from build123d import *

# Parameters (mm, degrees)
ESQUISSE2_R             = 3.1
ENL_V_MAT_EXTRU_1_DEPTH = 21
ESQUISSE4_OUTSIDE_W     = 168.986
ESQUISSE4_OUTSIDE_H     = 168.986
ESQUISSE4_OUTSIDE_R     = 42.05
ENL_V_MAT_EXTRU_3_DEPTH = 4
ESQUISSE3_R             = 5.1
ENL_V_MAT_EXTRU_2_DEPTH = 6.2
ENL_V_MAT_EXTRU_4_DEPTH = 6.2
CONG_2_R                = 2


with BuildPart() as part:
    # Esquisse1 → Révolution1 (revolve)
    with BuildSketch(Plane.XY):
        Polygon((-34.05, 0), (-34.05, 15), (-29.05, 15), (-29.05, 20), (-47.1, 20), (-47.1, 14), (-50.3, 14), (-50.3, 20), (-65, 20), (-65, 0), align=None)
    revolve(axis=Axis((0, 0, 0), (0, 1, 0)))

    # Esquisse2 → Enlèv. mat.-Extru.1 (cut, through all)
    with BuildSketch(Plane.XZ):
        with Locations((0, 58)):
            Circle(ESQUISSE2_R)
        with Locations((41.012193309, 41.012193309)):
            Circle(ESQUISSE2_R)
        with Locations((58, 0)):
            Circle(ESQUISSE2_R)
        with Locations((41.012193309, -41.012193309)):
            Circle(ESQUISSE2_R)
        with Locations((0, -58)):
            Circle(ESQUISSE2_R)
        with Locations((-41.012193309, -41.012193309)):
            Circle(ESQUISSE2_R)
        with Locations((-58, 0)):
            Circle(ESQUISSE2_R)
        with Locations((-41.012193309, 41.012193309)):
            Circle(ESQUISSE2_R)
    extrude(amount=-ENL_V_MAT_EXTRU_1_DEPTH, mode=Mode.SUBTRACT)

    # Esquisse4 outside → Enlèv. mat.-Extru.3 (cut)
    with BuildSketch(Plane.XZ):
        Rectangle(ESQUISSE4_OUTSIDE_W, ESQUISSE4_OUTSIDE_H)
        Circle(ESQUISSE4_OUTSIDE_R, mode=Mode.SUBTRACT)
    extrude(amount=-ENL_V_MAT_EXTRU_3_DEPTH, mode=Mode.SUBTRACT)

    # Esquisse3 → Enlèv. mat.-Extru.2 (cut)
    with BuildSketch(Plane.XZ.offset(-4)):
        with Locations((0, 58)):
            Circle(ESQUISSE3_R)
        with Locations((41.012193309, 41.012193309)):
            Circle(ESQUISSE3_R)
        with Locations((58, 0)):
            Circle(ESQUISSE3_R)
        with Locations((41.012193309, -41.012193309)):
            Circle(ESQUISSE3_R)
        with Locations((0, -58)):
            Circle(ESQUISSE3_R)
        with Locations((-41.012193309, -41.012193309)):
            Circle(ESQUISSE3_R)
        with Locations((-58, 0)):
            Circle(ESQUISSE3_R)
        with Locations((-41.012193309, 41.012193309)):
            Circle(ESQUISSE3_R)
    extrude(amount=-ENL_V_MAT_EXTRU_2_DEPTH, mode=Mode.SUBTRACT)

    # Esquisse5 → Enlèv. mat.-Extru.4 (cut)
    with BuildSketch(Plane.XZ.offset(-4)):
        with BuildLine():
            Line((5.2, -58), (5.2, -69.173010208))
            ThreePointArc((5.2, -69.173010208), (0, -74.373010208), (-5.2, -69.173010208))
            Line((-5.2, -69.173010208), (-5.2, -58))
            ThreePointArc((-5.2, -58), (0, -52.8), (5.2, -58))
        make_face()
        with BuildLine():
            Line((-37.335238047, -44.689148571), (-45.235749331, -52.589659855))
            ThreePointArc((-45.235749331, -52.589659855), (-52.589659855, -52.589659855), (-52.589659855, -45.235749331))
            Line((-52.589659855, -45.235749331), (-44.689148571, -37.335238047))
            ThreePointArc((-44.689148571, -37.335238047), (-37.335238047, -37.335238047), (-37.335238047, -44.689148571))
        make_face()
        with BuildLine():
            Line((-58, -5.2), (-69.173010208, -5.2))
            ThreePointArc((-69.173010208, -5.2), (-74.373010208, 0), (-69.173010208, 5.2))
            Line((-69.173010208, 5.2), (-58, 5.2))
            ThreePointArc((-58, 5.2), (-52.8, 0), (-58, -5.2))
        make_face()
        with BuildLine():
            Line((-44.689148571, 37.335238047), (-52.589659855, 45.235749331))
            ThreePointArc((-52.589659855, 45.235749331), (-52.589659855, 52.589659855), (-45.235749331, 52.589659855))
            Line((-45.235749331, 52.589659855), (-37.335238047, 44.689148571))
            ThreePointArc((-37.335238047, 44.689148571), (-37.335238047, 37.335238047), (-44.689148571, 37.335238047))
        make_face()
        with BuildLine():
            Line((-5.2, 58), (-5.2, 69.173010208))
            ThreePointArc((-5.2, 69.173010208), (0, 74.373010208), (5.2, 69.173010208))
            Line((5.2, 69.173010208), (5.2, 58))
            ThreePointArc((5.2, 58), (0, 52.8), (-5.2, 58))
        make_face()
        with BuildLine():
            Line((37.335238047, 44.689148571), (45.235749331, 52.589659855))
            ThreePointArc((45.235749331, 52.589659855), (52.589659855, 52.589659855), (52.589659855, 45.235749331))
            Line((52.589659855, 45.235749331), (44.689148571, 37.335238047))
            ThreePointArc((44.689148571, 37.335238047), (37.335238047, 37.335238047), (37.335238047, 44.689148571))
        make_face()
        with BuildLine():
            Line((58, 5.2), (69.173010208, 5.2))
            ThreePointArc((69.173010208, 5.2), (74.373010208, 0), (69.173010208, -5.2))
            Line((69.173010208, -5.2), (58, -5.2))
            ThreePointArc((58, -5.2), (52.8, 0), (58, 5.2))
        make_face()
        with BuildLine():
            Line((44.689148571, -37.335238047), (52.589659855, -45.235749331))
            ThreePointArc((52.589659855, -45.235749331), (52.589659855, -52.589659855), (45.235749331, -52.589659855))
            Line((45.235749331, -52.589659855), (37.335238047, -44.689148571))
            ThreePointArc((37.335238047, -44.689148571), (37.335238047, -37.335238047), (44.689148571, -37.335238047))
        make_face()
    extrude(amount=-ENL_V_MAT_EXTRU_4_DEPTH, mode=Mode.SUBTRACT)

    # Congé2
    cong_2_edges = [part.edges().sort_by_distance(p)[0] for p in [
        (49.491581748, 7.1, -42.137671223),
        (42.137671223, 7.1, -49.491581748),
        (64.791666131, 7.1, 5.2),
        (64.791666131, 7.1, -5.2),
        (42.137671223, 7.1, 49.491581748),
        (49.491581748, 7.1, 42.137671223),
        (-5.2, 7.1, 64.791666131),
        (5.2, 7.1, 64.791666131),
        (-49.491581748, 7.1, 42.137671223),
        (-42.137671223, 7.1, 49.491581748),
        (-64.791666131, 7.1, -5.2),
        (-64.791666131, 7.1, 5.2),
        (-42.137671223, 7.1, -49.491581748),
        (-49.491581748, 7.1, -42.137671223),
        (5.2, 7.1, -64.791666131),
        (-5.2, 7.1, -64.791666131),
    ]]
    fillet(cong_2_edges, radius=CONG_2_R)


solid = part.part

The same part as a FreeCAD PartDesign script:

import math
import FreeCAD as App
import Part
import Sketcher
Q = App.Units.Quantity


def edges_at(feature, points):
    """Names of the edges that pass closest to the given points."""
    edges = feature.Shape.Edges
    near = lambda p: min(range(len(edges)), key=lambda i: edges[i].distToShape(Part.Vertex(*p))[0])
    return sorted({f"Edge{near(p) + 1}" for p in points})


def add_polygon(sketch, points):
    """Adds a closed chain of lines whose ends are joined by coincident constraints."""
    first, n = sketch.GeometryCount, len(points)
    for a, b in zip(points, points[1:] + points[:1]):
        sketch.addGeometry(Part.LineSegment(App.Vector(*a, 0), App.Vector(*b, 0)), False)
    for i in range(n):
        sketch.addConstraint(Sketcher.Constraint("Coincident", first + i, 2, first + (i + 1) % n, 1))

doc = App.newDocument("Part")
body = doc.addObject("PartDesign::Body", "Body")

# Sketch on XY plane
sketch1 = body.newObject("Sketcher::SketchObject", "Sketch")
sketch1.AttachmentSupport = (doc.getObject("XY_Plane"), [""])
sketch1.MapMode = "FlatFace"
add_polygon(sketch1, [(-34, 0), (-34, 15), (-29.1, 15), (-29.1, 20), (-47.1, 20), (-47.1, 14), (-50.3, 14), (-50.3, 20), (-65, 20), (-65, 0)])  # lines 0-9
sketch1.addConstraint([
    Sketcher.Constraint("Vertical", 0),
    Sketcher.Constraint("Horizontal", 1),
    Sketcher.Constraint("Vertical", 2),
    Sketcher.Constraint("Horizontal", 3),
    Sketcher.Constraint("Vertical", 4),
    Sketcher.Constraint("Horizontal", 5),
    Sketcher.Constraint("Vertical", 6),
    Sketcher.Constraint("Horizontal", 7),
    Sketcher.Constraint("Vertical", 8),
    Sketcher.Constraint("Horizontal", 9),
    Sketcher.Constraint("PointOnObject", 8, 2, -1),
    Sketcher.Constraint("Horizontal", 3, 2, 6, 2),
    Sketcher.Constraint("Equal", 1, 2),
    Sketcher.Constraint("DistanceX", 1, 1, 1, 2, Q("5 mm")),
    Sketcher.Constraint("DistanceY", 0, 1, 0, 2, Q("15 mm")),
    Sketcher.Constraint("DistanceY", 4, 2, 4, 1, Q("6 mm")),
    Sketcher.Constraint("DistanceX", 5, 2, 5, 1, Q("3.2 mm")),
    Sketcher.Constraint("DistanceX", 7, 2, 7, 1, Q("14.7 mm")),
    Sketcher.Constraint("DistanceX", 7, 2, -1, 1, Q("65 mm")),
    Sketcher.Constraint("DistanceX", 3, 2, 3, 1, Q("18.05 mm")),
])
revolution = body.newObject("PartDesign::Revolution", "Revolution")
revolution.Profile = sketch1
revolution.ReferenceAxis = (sketch1, ["V_Axis"])
revolution.Angle = 360

# Sketch on XZ plane
sketch2 = body.newObject("Sketcher::SketchObject", "Sketch001")
sketch2.AttachmentSupport = (doc.getObject("XZ_Plane"), [""])
sketch2.MapMode = "FlatFace"
sketch2.addGeometry([
    Part.Circle(App.Vector(0, 58, 0), App.Vector(0, 0, 1), 3.1),  # 0
    Part.Circle(App.Vector(41, 41, 0), App.Vector(0, 0, 1), 3.1),  # 1
    Part.Circle(App.Vector(58, 0, 0), App.Vector(0, 0, 1), 3.1),  # 2
    Part.Circle(App.Vector(41, -41, 0), App.Vector(0, 0, 1), 3.1),  # 3
    Part.Circle(App.Vector(0, -58, 0), App.Vector(0, 0, 1), 3.1),  # 4
    Part.Circle(App.Vector(-41, -41, 0), App.Vector(0, 0, 1), 3.1),  # 5
    Part.Circle(App.Vector(-58, 0, 0), App.Vector(0, 0, 1), 3.1),  # 6
    Part.Circle(App.Vector(-41, 41, 0), App.Vector(0, 0, 1), 3.1),  # 7
], False)
sketch2.addConstraint([
    Sketcher.Constraint("Equal", 0, 1),
    Sketcher.Constraint("Equal", 1, 2),
    Sketcher.Constraint("Equal", 2, 3),
    Sketcher.Constraint("Equal", 3, 4),
    Sketcher.Constraint("Equal", 4, 5),
    Sketcher.Constraint("Equal", 5, 6),
    Sketcher.Constraint("Equal", 6, 7),
    Sketcher.Constraint("Symmetric", 0, 3, 4, 3, -1, 1),
    Sketcher.Constraint("Symmetric", 1, 3, 5, 3, -1, 1),
    Sketcher.Constraint("Symmetric", 2, 3, 6, 3, -1, 1),
    Sketcher.Constraint("Symmetric", 3, 3, 7, 3, -1, 1),
    Sketcher.Constraint("Symmetric", 3, 3, 5, 3, -2),
    Sketcher.Constraint("PointOnObject", 0, 3, -2),
    Sketcher.Constraint("PointOnObject", 2, 3, -1),
    Sketcher.Constraint("Diameter", 0, Q("6.2 mm")),
    Sketcher.Constraint("DistanceY", -1, 1, 0, 3, Q("58 mm")),
    Sketcher.Constraint("DistanceX", -1, 1, 2, 3, Q("58 mm")),
    Sketcher.Constraint("DistanceX", -1, 1, 1, 3, Q("41.012193 mm")),
    Sketcher.Constraint("DistanceY", -1, 1, 1, 3, Q("41.012193 mm")),
])
pocket1 = body.newObject("PartDesign::Pocket", "Pocket")
pocket1.Profile = sketch2
pocket1.Type = "ThroughAll"

# Sketch on XZ plane
sketch3 = body.newObject("Sketcher::SketchObject", "Sketch002")
sketch3.AttachmentSupport = (doc.getObject("XZ_Plane"), [""])
sketch3.MapMode = "FlatFace"
add_polygon(sketch3, [(-84, 84), (-84, -84), (84, -84), (84, 84)])  # lines 0-3
sketch3.addGeometry(Part.Circle(App.Vector(0, 0, 0), App.Vector(0, 0, 1), 42), False)  # 4
sketch3.addConstraint([
    Sketcher.Constraint("Vertical", 0),
    Sketcher.Constraint("Horizontal", 1),
    Sketcher.Constraint("Vertical", 2),
    Sketcher.Constraint("Horizontal", 3),
    Sketcher.Constraint("Coincident", 4, 3, -1, 1),
    Sketcher.Constraint("Symmetric", 0, 2, 2, 2, -1, 1),
    Sketcher.Constraint("Equal", 3, 0),
    Sketcher.Constraint("Diameter", 4, Q("84.1 mm")),
    Sketcher.Constraint("DistanceX", 1, 1, 1, 2, Q("168.986 mm")),
])
pocket2 = body.newObject("PartDesign::Pocket", "Pocket001")
pocket2.Profile = sketch3
pocket2.Length = 4

# Sketch on XZ plane
sketch4 = body.newObject("Sketcher::SketchObject", "Sketch003")
sketch4.AttachmentSupport = (doc.getObject("XZ_Plane"), [""])
sketch4.MapMode = "FlatFace"
sketch4.AttachmentOffset = App.Placement(App.Vector(0, 0, -4), App.Rotation())
sketch4.addGeometry([
    Part.Circle(App.Vector(0, 58, 0), App.Vector(0, 0, 1), 5),  # 0
    Part.Circle(App.Vector(41, 41, 0), App.Vector(0, 0, 1), 5),  # 1
    Part.Circle(App.Vector(58, 0, 0), App.Vector(0, 0, 1), 5),  # 2
    Part.Circle(App.Vector(41, -41, 0), App.Vector(0, 0, 1), 5),  # 3
    Part.Circle(App.Vector(0, -58, 0), App.Vector(0, 0, 1), 5),  # 4
    Part.Circle(App.Vector(-41, -41, 0), App.Vector(0, 0, 1), 5),  # 5
    Part.Circle(App.Vector(-58, 0, 0), App.Vector(0, 0, 1), 5),  # 6
    Part.Circle(App.Vector(-41, 41, 0), App.Vector(0, 0, 1), 5),  # 7
], False)
sketch4.addConstraint([
    Sketcher.Constraint("Equal", 0, 1),
    Sketcher.Constraint("Equal", 1, 2),
    Sketcher.Constraint("Equal", 2, 3),
    Sketcher.Constraint("Equal", 3, 4),
    Sketcher.Constraint("Equal", 4, 5),
    Sketcher.Constraint("Equal", 5, 6),
    Sketcher.Constraint("Equal", 6, 7),
    Sketcher.Constraint("Symmetric", 0, 3, 4, 3, -1, 1),
    Sketcher.Constraint("Symmetric", 1, 3, 5, 3, -1, 1),
    Sketcher.Constraint("Symmetric", 2, 3, 6, 3, -1, 1),
    Sketcher.Constraint("Symmetric", 3, 3, 7, 3, -1, 1),
    Sketcher.Constraint("Symmetric", 3, 3, 5, 3, -2),
    Sketcher.Constraint("PointOnObject", 0, 3, -2),
    Sketcher.Constraint("PointOnObject", 2, 3, -1),
    Sketcher.Constraint("Diameter", 0, Q("10.2 mm")),
    Sketcher.Constraint("DistanceY", -1, 1, 0, 3, Q("58 mm")),
    Sketcher.Constraint("DistanceX", -1, 1, 2, 3, Q("58 mm")),
    Sketcher.Constraint("DistanceX", -1, 1, 1, 3, Q("41.012193 mm")),
    Sketcher.Constraint("DistanceY", -1, 1, 1, 3, Q("41.012193 mm")),
])
pocket3 = body.newObject("PartDesign::Pocket", "Pocket002")
pocket3.Profile = sketch4
pocket3.Length = 6.2

# Sketch on XZ plane
sketch5 = body.newObject("Sketcher::SketchObject", "Sketch004")
sketch5.AttachmentSupport = (doc.getObject("XZ_Plane"), [""])
sketch5.MapMode = "FlatFace"
sketch5.AttachmentOffset = App.Placement(App.Vector(0, 0, -4), App.Rotation())
sketch5.addGeometry([
    Part.LineSegment(App.Vector(5, -69, 0), App.Vector(5, -58, 0)),  # 0
    Part.ArcOfCircle(Part.Circle(App.Vector(0, -58, 0), App.Vector(0, 0, 1), 5), math.radians(0), math.radians(180)),  # 1
    Part.LineSegment(App.Vector(-5, -58, 0), App.Vector(-5, -69, 0)),  # 2
    Part.ArcOfCircle(Part.Circle(App.Vector(0, -69, 0), App.Vector(0, 0, 1), 5), math.radians(180), math.radians(360)),  # 3
    Part.LineSegment(App.Vector(-45, -53, 0), App.Vector(-37, -45, 0)),  # 4
    Part.ArcOfCircle(Part.Circle(App.Vector(-41, -41, 0), App.Vector(0, 0, 1), 5), math.radians(-45), math.radians(135)),  # 5
    Part.LineSegment(App.Vector(-45, -37, 0), App.Vector(-53, -45, 0)),  # 6
    Part.ArcOfCircle(Part.Circle(App.Vector(-49, -49, 0), App.Vector(0, 0, 1), 5), math.radians(135), math.radians(315)),  # 7
    Part.LineSegment(App.Vector(-69, -5, 0), App.Vector(-58, -5, 0)),  # 8
    Part.ArcOfCircle(Part.Circle(App.Vector(-58, 0, 0), App.Vector(0, 0, 1), 5), math.radians(-90), math.radians(90)),  # 9
    Part.LineSegment(App.Vector(-58, 5, 0), App.Vector(-69, 5, 0)),  # 10
    Part.ArcOfCircle(Part.Circle(App.Vector(-69, 0, 0), App.Vector(0, 0, 1), 5), math.radians(90), math.radians(270)),  # 11
    Part.LineSegment(App.Vector(-53, 45, 0), App.Vector(-45, 37, 0)),  # 12
    Part.ArcOfCircle(Part.Circle(App.Vector(-41, 41, 0), App.Vector(0, 0, 1), 5), math.radians(-135), math.radians(45)),  # 13
    Part.LineSegment(App.Vector(-37, 45, 0), App.Vector(-45, 53, 0)),  # 14
    Part.ArcOfCircle(Part.Circle(App.Vector(-49, 49, 0), App.Vector(0, 0, 1), 5), math.radians(45), math.radians(225)),  # 15
    Part.LineSegment(App.Vector(-5, 69, 0), App.Vector(-5, 58, 0)),  # 16
    Part.ArcOfCircle(Part.Circle(App.Vector(0, 58, 0), App.Vector(0, 0, 1), 5), math.radians(180), math.radians(360)),  # 17
    Part.LineSegment(App.Vector(5, 58, 0), App.Vector(5, 69, 0)),  # 18
    Part.ArcOfCircle(Part.Circle(App.Vector(0, 69, 0), App.Vector(0, 0, 1), 5), math.radians(0), math.radians(180)),  # 19
    Part.LineSegment(App.Vector(45, 53, 0), App.Vector(37, 45, 0)),  # 20
    Part.ArcOfCircle(Part.Circle(App.Vector(41, 41, 0), App.Vector(0, 0, 1), 5), math.radians(135), math.radians(315)),  # 21
    Part.LineSegment(App.Vector(45, 37, 0), App.Vector(53, 45, 0)),  # 22
    Part.ArcOfCircle(Part.Circle(App.Vector(49, 49, 0), App.Vector(0, 0, 1), 5), math.radians(-45), math.radians(135)),  # 23
    Part.LineSegment(App.Vector(69, 5, 0), App.Vector(58, 5, 0)),  # 24
    Part.ArcOfCircle(Part.Circle(App.Vector(58, 0, 0), App.Vector(0, 0, 1), 5), math.radians(90), math.radians(270)),  # 25
    Part.LineSegment(App.Vector(58, -5, 0), App.Vector(69, -5, 0)),  # 26
    Part.ArcOfCircle(Part.Circle(App.Vector(69, 0, 0), App.Vector(0, 0, 1), 5), math.radians(-90), math.radians(90)),  # 27
    Part.LineSegment(App.Vector(53, -45, 0), App.Vector(45, -37, 0)),  # 28
    Part.ArcOfCircle(Part.Circle(App.Vector(41, -41, 0), App.Vector(0, 0, 1), 5), math.radians(45), math.radians(225)),  # 29
    Part.LineSegment(App.Vector(37, -45, 0), App.Vector(45, -53, 0)),  # 30
    Part.ArcOfCircle(Part.Circle(App.Vector(49, -49, 0), App.Vector(0, 0, 1), 5), math.radians(-135), math.radians(45)),  # 31
], False)
sketch5.addConstraint([
    Sketcher.Constraint("Tangent", 0, 2, 1, 1),
    Sketcher.Constraint("Tangent", 1, 2, 2, 1),
    Sketcher.Constraint("Tangent", 2, 2, 3, 1),
    Sketcher.Constraint("Tangent", 3, 2, 0, 1),
    Sketcher.Constraint("Tangent", 4, 2, 5, 1),
    Sketcher.Constraint("Tangent", 5, 2, 6, 1),
    Sketcher.Constraint("Tangent", 6, 2, 7, 1),
    Sketcher.Constraint("Tangent", 7, 2, 4, 1),
    Sketcher.Constraint("Tangent", 8, 2, 9, 1),
    Sketcher.Constraint("Tangent", 9, 2, 10, 1),
    Sketcher.Constraint("Tangent", 10, 2, 11, 1),
    Sketcher.Constraint("Tangent", 11, 2, 8, 1),
    Sketcher.Constraint("Tangent", 12, 2, 13, 1),
    Sketcher.Constraint("Tangent", 13, 2, 14, 1),
    Sketcher.Constraint("Tangent", 14, 2, 15, 1),
    Sketcher.Constraint("Tangent", 15, 2, 12, 1),
    Sketcher.Constraint("Tangent", 16, 2, 17, 1),
    Sketcher.Constraint("Tangent", 17, 2, 18, 1),
    Sketcher.Constraint("Tangent", 18, 2, 19, 1),
    Sketcher.Constraint("Tangent", 19, 2, 16, 1),
    Sketcher.Constraint("Tangent", 20, 2, 21, 1),
    Sketcher.Constraint("Tangent", 21, 2, 22, 1),
    Sketcher.Constraint("Tangent", 22, 2, 23, 1),
    Sketcher.Constraint("Tangent", 23, 2, 20, 1),
    Sketcher.Constraint("Tangent", 24, 2, 25, 1),
    Sketcher.Constraint("Tangent", 25, 2, 26, 1),
    Sketcher.Constraint("Tangent", 26, 2, 27, 1),
    Sketcher.Constraint("Tangent", 27, 2, 24, 1),
    Sketcher.Constraint("Tangent", 28, 2, 29, 1),
    Sketcher.Constraint("Tangent", 29, 2, 30, 1),
    Sketcher.Constraint("Tangent", 30, 2, 31, 1),
    Sketcher.Constraint("Tangent", 31, 2, 28, 1),
    Sketcher.Constraint("Vertical", 0),
    Sketcher.Constraint("Vertical", 2),
    Sketcher.Constraint("Horizontal", 8),
    Sketcher.Constraint("Horizontal", 10),
    Sketcher.Constraint("Vertical", 16),
    Sketcher.Constraint("Vertical", 18),
    Sketcher.Constraint("Horizontal", 24),
    Sketcher.Constraint("Horizontal", 26),
    Sketcher.Constraint("Equal", 3, 5),
    Sketcher.Constraint("Equal", 5, 7),
    Sketcher.Constraint("Equal", 7, 9),
    Sketcher.Constraint("Equal", 11, 13),
    Sketcher.Constraint("Equal", 13, 15),
    Sketcher.Constraint("Equal", 15, 17),
    Sketcher.Constraint("Equal", 19, 21),
    Sketcher.Constraint("Equal", 21, 23),
    Sketcher.Constraint("Equal", 23, 25),
    Sketcher.Constraint("Equal", 27, 29),
    Sketcher.Constraint("Equal", 29, 31),
    Sketcher.Constraint("Symmetric", 1, 3, 17, 3, -1, 1),
    Sketcher.Constraint("Symmetric", 5, 3, 21, 3, -1, 1),
    Sketcher.Constraint("Symmetric", 7, 3, 23, 3, -1, 1),
    Sketcher.Constraint("Symmetric", 9, 3, 25, 3, -1, 1),
    Sketcher.Constraint("Symmetric", 13, 3, 29, 3, -1, 1),
    Sketcher.Constraint("Symmetric", 15, 3, 31, 3, -1, 1),
    Sketcher.Constraint("Symmetric", 13, 3, 21, 3, -2),
    Sketcher.Constraint("Symmetric", 15, 3, 23, 3, -2),
    Sketcher.Constraint("Symmetric", 11, 3, 27, 3, -2),
    Sketcher.Constraint("Symmetric", 3, 3, 19, 3, -1),
    Sketcher.Constraint("Perpendicular", 6, 12),
    Sketcher.Constraint("Equal", 26, 0),
    Sketcher.Constraint("Radius", 1, Q("5.2 mm")),
    Sketcher.Constraint("DistanceY", 1, 3, -1, 1, Q("58 mm")),
    Sketcher.Constraint("DistanceX", 9, 3, -1, 1, Q("58 mm")),
    Sketcher.Constraint("DistanceX", 8, 1, 8, 2, Q("11.17301 mm")),
    Sketcher.Constraint("DistanceY", 6, 2, 4, 2, Q("0.546601 mm")),
    Sketcher.Constraint("DistanceX", 4, 2, -1, 1, Q("37.335238 mm")),
    Sketcher.Constraint("DistanceY", 4, 2, -1, 1, Q("44.689149 mm")),
])
pocket4 = body.newObject("PartDesign::Pocket", "Pocket003")
pocket4.Profile = sketch5
pocket4.Length = 6.2
doc.recompute()

fillet = body.newObject("PartDesign::Fillet", "Fillet")
fillet.Base = (pocket4, edges_at(pocket4, [
    (49.492, 7.1, -42.138),
    (42.138, 7.1, -49.492),
    (64.792, 7.1, 5.2),
    (64.792, 7.1, -5.2),
    (42.138, 7.1, 49.492),
    (49.492, 7.1, 42.138),
    (-5.2, 7.1, 64.792),
    (5.2, 7.1, 64.792),
    (-49.492, 7.1, 42.138),
    (-42.138, 7.1, 49.492),
    (-64.792, 7.1, -5.2),
    (-64.792, 7.1, 5.2),
    (-42.138, 7.1, -49.492),
    (-49.492, 7.1, -42.138),
    (5.2, 7.1, -64.792),
    (-5.2, 7.1, -64.792),
]))
fillet.Radius = 2

doc.recompute()
